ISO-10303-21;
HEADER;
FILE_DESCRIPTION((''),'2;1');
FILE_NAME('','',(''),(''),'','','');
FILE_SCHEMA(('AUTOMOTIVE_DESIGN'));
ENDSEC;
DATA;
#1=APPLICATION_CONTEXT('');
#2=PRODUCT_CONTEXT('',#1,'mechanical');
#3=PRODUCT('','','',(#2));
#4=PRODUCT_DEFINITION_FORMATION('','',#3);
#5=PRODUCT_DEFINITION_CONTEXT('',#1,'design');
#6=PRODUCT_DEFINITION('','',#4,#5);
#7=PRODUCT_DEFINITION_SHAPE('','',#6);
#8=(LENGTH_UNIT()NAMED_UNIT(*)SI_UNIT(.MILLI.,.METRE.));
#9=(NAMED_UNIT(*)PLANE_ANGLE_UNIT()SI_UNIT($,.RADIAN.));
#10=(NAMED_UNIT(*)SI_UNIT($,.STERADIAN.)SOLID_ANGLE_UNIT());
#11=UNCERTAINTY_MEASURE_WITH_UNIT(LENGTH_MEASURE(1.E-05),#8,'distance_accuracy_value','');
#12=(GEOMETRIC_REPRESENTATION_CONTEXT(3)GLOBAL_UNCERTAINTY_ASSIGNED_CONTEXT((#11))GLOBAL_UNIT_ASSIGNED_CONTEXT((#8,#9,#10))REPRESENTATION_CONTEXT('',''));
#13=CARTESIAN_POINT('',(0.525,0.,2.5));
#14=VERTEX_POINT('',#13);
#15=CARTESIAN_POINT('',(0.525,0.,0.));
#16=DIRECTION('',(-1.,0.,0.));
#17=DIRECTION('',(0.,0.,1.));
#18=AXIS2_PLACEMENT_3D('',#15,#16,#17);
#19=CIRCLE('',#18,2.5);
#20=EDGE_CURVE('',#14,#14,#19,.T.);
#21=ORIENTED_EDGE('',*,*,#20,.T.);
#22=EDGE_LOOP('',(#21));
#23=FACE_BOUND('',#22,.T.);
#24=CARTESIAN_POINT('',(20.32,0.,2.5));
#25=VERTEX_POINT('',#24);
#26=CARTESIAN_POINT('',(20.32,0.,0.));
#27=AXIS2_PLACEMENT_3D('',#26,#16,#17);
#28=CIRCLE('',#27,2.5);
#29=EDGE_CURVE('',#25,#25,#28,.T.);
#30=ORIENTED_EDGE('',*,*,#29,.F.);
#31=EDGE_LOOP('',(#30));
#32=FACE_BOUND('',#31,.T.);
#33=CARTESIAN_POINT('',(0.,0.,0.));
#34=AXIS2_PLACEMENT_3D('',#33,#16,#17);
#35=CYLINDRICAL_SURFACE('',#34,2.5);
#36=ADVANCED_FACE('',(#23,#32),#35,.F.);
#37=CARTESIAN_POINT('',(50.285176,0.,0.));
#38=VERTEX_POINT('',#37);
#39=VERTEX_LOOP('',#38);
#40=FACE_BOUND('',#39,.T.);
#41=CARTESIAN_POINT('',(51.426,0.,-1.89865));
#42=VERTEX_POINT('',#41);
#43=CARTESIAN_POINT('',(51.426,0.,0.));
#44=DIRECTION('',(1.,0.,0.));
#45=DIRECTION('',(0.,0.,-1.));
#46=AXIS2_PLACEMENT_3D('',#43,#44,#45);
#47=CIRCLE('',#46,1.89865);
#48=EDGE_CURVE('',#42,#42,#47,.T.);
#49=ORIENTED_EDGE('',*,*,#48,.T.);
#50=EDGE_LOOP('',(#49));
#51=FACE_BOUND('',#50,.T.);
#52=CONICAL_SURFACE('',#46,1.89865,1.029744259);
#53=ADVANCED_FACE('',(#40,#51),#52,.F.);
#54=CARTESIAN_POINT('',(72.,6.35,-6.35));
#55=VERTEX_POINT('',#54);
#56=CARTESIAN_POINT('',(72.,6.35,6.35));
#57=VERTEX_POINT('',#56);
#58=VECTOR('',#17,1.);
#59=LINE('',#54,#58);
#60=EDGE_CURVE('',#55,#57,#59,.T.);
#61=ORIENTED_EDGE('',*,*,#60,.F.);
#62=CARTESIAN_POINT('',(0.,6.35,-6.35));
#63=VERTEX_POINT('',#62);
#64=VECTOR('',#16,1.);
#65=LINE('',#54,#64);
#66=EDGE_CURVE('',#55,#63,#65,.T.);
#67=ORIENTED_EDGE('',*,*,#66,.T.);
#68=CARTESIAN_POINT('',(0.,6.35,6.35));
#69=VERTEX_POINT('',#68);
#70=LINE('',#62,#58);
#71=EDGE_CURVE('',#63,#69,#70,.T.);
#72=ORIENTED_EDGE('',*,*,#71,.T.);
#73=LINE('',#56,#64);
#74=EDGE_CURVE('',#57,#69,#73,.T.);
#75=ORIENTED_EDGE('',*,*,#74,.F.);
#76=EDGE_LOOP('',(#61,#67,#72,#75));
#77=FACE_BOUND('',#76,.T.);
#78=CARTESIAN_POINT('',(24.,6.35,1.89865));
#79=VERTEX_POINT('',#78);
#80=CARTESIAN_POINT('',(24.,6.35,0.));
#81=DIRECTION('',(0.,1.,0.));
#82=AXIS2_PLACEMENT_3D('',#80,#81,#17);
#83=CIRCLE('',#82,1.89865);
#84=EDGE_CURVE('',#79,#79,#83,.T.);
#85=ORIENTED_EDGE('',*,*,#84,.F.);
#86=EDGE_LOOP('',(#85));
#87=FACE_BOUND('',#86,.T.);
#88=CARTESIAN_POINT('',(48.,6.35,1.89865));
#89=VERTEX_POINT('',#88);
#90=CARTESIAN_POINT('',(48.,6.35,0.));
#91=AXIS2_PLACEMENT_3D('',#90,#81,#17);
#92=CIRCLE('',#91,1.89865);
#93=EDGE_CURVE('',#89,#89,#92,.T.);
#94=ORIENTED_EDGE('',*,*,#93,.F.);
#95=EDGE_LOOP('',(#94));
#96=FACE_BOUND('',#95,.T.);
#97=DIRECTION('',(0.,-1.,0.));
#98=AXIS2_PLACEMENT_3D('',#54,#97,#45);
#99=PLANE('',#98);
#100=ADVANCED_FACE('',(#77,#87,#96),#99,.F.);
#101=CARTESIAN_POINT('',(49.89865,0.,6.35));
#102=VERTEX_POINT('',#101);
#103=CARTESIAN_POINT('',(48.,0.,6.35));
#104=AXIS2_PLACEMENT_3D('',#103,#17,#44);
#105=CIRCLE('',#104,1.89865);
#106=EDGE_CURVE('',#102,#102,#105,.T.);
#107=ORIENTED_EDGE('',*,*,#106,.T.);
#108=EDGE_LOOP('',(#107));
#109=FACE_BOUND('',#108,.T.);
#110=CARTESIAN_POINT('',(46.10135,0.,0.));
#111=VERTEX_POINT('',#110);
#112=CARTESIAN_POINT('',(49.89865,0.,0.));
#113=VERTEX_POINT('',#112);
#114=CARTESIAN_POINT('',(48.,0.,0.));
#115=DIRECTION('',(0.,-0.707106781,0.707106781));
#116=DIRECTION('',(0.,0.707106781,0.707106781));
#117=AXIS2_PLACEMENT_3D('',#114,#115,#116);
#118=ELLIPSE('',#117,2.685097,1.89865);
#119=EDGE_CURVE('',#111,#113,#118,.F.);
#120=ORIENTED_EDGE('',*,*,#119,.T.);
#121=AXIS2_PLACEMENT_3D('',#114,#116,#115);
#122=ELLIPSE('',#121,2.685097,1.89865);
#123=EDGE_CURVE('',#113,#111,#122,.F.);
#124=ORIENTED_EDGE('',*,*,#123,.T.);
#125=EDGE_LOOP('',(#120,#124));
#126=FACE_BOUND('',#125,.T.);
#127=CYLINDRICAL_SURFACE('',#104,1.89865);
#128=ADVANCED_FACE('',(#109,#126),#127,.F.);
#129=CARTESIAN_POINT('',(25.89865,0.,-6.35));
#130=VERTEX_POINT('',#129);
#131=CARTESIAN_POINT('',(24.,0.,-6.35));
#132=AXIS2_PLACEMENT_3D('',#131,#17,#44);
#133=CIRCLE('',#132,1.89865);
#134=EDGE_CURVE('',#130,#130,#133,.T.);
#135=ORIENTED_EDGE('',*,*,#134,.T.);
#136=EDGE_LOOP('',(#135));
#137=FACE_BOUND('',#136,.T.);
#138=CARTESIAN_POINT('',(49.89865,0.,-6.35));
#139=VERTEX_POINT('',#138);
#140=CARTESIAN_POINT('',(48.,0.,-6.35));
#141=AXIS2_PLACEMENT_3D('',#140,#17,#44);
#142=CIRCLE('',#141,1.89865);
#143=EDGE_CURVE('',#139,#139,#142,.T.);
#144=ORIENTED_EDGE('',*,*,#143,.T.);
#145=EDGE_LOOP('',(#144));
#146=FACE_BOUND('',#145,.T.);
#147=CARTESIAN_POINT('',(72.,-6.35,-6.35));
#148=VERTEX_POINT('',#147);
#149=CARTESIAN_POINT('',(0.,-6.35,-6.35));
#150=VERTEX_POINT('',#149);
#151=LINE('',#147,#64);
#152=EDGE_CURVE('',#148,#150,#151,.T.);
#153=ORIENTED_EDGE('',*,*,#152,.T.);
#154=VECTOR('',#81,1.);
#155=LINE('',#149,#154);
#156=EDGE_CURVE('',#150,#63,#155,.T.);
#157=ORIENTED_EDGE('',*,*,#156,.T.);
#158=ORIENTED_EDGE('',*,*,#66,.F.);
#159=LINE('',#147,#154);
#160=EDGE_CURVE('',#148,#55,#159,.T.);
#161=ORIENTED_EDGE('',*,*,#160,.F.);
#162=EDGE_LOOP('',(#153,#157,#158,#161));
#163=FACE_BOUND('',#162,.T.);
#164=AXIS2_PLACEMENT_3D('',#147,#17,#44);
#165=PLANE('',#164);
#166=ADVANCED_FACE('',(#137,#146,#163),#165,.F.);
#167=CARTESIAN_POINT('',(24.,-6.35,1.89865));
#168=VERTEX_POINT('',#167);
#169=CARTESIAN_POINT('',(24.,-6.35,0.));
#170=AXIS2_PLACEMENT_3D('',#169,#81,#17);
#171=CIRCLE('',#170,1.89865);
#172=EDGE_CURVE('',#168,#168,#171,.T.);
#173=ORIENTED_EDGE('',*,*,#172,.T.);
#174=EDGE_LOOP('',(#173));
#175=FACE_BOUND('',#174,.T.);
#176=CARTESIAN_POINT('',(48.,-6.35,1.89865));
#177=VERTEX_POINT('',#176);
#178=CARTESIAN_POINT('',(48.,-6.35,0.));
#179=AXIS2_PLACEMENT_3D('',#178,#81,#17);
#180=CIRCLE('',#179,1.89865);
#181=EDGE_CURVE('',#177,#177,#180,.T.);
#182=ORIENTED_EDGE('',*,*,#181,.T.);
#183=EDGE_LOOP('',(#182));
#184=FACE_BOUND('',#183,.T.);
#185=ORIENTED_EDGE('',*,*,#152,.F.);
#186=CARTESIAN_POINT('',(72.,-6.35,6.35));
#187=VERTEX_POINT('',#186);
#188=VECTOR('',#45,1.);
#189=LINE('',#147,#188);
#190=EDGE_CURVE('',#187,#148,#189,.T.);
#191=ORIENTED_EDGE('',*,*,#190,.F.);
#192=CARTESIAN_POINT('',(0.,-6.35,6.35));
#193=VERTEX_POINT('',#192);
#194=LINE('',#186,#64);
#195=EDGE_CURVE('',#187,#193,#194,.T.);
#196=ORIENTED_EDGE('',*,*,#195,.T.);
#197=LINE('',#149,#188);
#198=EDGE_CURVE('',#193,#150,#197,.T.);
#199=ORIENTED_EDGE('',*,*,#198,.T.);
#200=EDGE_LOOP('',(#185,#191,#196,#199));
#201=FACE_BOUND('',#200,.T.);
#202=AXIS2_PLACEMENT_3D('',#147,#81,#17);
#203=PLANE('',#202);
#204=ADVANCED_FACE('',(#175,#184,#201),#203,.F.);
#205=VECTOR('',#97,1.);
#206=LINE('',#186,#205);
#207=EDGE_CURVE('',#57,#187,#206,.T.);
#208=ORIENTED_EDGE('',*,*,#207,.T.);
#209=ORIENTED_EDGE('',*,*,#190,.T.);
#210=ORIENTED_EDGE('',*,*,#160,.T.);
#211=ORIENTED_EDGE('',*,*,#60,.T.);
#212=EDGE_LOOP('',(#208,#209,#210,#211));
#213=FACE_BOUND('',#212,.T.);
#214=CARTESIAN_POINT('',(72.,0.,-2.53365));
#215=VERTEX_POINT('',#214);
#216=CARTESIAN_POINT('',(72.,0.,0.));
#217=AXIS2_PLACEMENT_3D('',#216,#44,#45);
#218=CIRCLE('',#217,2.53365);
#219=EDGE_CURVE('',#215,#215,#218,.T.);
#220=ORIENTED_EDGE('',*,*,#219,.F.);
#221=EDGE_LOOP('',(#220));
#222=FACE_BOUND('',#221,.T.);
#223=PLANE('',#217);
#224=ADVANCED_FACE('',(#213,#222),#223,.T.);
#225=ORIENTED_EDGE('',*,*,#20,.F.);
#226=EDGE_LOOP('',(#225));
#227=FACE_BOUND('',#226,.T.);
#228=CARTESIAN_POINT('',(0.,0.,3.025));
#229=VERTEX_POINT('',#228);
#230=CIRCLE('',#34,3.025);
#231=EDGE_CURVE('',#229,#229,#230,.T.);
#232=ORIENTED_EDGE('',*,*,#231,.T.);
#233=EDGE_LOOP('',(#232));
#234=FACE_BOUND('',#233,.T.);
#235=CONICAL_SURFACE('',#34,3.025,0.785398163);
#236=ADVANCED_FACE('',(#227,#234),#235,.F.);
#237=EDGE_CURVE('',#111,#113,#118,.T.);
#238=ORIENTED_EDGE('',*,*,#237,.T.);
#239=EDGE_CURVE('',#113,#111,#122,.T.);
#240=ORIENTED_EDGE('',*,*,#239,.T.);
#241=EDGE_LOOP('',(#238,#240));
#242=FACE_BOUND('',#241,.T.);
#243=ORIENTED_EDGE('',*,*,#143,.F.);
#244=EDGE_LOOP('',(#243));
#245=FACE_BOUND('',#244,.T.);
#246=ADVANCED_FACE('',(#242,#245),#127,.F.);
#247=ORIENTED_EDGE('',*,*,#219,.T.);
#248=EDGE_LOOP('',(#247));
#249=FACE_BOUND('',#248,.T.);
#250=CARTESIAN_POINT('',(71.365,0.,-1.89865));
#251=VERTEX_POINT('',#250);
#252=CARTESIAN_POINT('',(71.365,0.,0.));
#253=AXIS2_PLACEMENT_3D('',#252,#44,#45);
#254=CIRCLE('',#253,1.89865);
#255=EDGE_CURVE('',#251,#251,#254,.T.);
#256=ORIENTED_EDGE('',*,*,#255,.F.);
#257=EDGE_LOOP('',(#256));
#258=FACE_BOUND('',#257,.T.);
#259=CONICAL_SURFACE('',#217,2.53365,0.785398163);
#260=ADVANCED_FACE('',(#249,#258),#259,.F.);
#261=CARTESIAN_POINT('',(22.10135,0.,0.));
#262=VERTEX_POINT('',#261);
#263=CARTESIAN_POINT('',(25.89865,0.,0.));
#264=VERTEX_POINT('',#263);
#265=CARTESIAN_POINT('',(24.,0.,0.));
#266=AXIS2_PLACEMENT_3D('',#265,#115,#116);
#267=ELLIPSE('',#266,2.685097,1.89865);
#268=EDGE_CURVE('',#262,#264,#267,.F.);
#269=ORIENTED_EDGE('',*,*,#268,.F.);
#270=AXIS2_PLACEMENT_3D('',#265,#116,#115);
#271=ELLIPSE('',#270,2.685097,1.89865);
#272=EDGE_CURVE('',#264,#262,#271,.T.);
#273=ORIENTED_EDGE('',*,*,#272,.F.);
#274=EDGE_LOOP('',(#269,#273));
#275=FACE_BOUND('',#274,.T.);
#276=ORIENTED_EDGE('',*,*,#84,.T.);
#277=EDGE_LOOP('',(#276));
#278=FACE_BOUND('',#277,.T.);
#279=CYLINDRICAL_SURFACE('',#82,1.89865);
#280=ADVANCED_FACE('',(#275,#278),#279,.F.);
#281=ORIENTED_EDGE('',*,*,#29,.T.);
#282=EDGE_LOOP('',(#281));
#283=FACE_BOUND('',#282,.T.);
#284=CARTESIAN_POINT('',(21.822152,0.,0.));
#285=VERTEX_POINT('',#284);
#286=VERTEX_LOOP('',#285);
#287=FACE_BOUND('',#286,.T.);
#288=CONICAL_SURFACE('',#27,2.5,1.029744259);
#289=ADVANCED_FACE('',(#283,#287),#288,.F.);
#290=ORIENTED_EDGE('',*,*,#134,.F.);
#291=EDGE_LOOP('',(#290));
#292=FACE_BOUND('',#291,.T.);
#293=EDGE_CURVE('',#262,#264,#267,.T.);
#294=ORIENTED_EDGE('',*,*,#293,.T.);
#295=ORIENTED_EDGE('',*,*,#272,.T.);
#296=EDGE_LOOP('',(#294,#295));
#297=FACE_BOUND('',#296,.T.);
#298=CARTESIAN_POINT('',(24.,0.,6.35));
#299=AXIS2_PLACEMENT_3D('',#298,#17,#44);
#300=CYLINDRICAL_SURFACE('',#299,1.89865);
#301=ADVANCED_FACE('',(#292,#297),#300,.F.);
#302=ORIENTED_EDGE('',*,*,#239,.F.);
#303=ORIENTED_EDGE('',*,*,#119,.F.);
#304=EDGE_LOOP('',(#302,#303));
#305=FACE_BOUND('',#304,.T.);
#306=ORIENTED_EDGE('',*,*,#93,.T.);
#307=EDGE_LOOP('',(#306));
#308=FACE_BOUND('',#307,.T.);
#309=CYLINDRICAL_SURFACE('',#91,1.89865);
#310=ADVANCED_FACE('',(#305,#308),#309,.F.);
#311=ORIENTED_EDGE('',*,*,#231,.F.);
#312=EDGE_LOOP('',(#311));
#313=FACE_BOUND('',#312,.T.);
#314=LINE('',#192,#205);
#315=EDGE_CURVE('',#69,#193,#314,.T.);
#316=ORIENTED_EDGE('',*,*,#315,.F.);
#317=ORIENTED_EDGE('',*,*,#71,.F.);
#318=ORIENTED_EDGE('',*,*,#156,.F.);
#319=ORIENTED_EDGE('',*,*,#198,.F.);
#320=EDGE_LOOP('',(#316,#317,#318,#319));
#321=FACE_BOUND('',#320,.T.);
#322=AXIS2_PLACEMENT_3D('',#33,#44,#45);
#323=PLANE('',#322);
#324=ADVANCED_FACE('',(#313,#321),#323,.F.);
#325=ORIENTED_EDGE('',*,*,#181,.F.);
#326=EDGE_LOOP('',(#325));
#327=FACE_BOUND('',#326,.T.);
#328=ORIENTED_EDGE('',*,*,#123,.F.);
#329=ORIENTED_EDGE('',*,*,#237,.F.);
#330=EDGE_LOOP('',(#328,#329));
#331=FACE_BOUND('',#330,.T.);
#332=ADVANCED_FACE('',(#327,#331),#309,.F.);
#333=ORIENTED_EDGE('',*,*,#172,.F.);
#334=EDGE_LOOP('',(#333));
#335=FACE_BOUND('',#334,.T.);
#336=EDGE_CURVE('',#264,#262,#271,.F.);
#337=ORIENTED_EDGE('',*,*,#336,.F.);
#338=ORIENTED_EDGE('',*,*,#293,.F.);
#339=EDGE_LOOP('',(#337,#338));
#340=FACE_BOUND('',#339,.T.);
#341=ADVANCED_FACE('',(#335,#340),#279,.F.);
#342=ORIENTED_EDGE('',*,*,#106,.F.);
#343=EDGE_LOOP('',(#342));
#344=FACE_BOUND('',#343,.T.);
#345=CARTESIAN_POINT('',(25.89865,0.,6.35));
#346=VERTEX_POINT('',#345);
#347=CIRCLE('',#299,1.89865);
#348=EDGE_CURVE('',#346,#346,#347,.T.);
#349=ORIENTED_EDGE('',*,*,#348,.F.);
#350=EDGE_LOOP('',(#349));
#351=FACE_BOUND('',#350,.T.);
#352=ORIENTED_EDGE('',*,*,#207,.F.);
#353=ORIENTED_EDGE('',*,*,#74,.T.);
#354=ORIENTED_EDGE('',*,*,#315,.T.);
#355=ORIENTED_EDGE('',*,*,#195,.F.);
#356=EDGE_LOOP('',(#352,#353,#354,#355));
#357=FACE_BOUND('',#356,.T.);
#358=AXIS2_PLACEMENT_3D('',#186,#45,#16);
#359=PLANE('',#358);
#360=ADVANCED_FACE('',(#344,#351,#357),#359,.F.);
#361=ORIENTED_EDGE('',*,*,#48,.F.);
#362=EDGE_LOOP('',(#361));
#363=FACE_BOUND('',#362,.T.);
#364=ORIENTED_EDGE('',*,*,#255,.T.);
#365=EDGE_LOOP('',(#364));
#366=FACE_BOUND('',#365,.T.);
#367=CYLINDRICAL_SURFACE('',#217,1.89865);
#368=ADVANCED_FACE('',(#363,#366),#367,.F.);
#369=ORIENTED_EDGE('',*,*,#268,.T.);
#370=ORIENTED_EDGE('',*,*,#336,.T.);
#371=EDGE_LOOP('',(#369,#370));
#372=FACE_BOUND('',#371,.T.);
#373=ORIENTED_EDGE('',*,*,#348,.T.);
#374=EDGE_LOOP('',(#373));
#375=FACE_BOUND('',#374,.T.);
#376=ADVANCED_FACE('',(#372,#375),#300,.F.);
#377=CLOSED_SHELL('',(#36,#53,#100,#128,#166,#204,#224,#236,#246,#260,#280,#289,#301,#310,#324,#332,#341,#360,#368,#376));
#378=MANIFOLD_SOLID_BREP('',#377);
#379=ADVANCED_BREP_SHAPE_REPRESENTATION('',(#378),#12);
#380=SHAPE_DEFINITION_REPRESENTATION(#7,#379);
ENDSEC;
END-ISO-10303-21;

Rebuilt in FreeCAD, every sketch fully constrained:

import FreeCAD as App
import Part
import Sketcher

V = App.Vector
Q = App.Units.Quantity

doc = App.newDocument("Part")
body = doc.addObject("PartDesign::Body", "Body")

sketch1 = body.newObject("Sketcher::SketchObject", "Sketch")
sketch1.AttachmentSupport = (doc.getObject("YZ_Plane"), [""])
sketch1.MapMode = "FlatFace"
sketch1.addGeometry([
    Part.LineSegment(V(6, 6, 0), V(-6, 6, 0)),
    Part.LineSegment(V(-6, 6, 0), V(-6, -6, 0)),
    Part.LineSegment(V(-6, -6, 0), V(6, -6, 0)),
    Part.LineSegment(V(6, -6, 0), V(6, 6, 0)),
], False)
sketch1.addConstraint([
    Sketcher.Constraint("Coincident", 0, 2, 1, 1),
    Sketcher.Constraint("Coincident", 1, 2, 2, 1),
    Sketcher.Constraint("Coincident", 2, 2, 3, 1),
    Sketcher.Constraint("Coincident", 3, 2, 0, 1),
    Sketcher.Constraint("Horizontal", 0),
    Sketcher.Constraint("Vertical", 1),
    Sketcher.Constraint("Horizontal", 2),
    Sketcher.Constraint("Vertical", 3),
    Sketcher.Constraint("Symmetric", 0, 2, 2, 2, -1, 1),
    Sketcher.Constraint("Equal", 2, 1),
    Sketcher.Constraint("DistanceX", 0, 2, 0, 1, Q("0.5 in")),
])
pad1 = body.newObject("PartDesign::Pad", "Pad")
pad1.Profile = sketch1
pad1.Length = 72

sketch2 = body.newObject("Sketcher::SketchObject", "Sketch001")
sketch2.AttachmentSupport = (doc.getObject("XY_Plane"), [""])
sketch2.MapMode = "FlatFace"
sketch2.AttachmentOffset = App.Placement(V(0, 0, 0.25 * 25.4), App.Rotation())
sketch2.addGeometry(Part.Circle(V(24, 0, 0), V(0, 0, 1), 1.9), False)
sketch2.addConstraint([
    Sketcher.Constraint("PointOnObject", 0, 3, -1),
    Sketcher.Constraint("Diameter", 0, Q("0.1495 in")),
    Sketcher.Constraint("DistanceX", -1, 1, 0, 3, Q("24 mm")),
])
doc.recompute()
hole = body.newObject("PartDesign::Hole", "Hole")
hole.Profile = sketch2
hole.ThreadType = "None"
hole.Diameter = Q("0.1495 in")
hole.DepthType = "ThroughAll"

sketch3 = body.newObject("Sketcher::SketchObject", "Sketch002")
sketch3.AttachmentSupport = (doc.getObject("XZ_Plane"), [""])
sketch3.MapMode = "FlatFace"
sketch3.AttachmentOffset = App.Placement(V(0, 0, -0.25 * 25.4), App.Rotation())
sketch3.addGeometry(Part.Circle(V(24, 0, 0), V(0, 0, 1), 1.9), False)
sketch3.addConstraint([
    Sketcher.Constraint("PointOnObject", 0, 3, -1),
    Sketcher.Constraint("Diameter", 0, Q("0.1495 in")),
    Sketcher.Constraint("DistanceX", -1, 1, 0, 3, Q("24 mm")),
])
doc.recompute()
hole2 = body.newObject("PartDesign::Hole", "Hole001")
hole2.Profile = sketch3
hole2.ThreadType = "None"
hole2.Diameter = Q("0.1495 in")
hole2.DepthType = "ThroughAll"
hole2.Reversed = True

sketch4 = body.newObject("Sketcher::SketchObject", "Sketch003")
sketch4.AttachmentSupport = (doc.getObject("YZ_Plane"), [""])
sketch4.MapMode = "FlatFace"
sketch4.addGeometry(Part.Circle(V(0, 0, 0), V(0, 0, 1), 2.5), False)
sketch4.addConstraint([
    Sketcher.Constraint("Coincident", 0, 3, -1, 1),
    Sketcher.Constraint("Diameter", 0, Q("5 mm")),
])
doc.recompute()
hole3 = body.newObject("PartDesign::Hole", "Hole002")
hole3.Profile = sketch4
hole3.ThreadType = "None"
hole3.Diameter = 5
hole3.DepthType = "Dimension"
hole3.Depth = Q("0.8 in")
hole3.DrillPoint = "Angled"
hole3.DrillPointAngle = 118
hole3.HoleCutType = "Countersink"
hole3.HoleCutDiameter = 6.05
hole3.HoleCutCountersinkAngle = 90
hole3.Reversed = True

sketch5 = body.newObject("Sketcher::SketchObject", "Sketch004")
sketch5.AttachmentSupport = (doc.getObject("YZ_Plane"), [""])
sketch5.MapMode = "FlatFace"
sketch5.AttachmentOffset = App.Placement(V(0, 0, 72), App.Rotation())
sketch5.addGeometry(Part.Circle(V(0, 0, 0), V(0, 0, 1), 1.9), False)
sketch5.addConstraint([
    Sketcher.Constraint("Coincident", 0, 3, -1, 1),
    Sketcher.Constraint("Diameter", 0, Q("0.1495 in")),
])
doc.recompute()
hole4 = body.newObject("PartDesign::Hole", "Hole003")
hole4.Profile = sketch5
hole4.ThreadType = "None"
hole4.Diameter = Q("0.1495 in")
hole4.DepthType = "Dimension"
hole4.Depth = Q("0.81 in")
hole4.DrillPoint = "Angled"
hole4.DrillPointAngle = 118
hole4.HoleCutType = "Countersink"
hole4.HoleCutDiameter = Q("0.1995 in")
hole4.HoleCutCountersinkAngle = 90
doc.recompute()

linearpattern = body.newObject("PartDesign::LinearPattern", "LinearPattern")
linearpattern.Originals = [hole]
linearpattern.Direction = (doc.getObject("X_Axis"), [""])
linearpattern.Mode = "offset"
linearpattern.Offset = 24
linearpattern.Occurrences = 2
body.Tip = linearpattern
doc.recompute()

linearpattern2 = body.newObject("PartDesign::LinearPattern", "LinearPattern001")
linearpattern2.Originals = [hole2]
linearpattern2.Direction = (doc.getObject("X_Axis"), [""])
linearpattern2.Mode = "offset"
linearpattern2.Offset = 24
linearpattern2.Occurrences = 2
body.Tip = linearpattern2

doc.recompute()
